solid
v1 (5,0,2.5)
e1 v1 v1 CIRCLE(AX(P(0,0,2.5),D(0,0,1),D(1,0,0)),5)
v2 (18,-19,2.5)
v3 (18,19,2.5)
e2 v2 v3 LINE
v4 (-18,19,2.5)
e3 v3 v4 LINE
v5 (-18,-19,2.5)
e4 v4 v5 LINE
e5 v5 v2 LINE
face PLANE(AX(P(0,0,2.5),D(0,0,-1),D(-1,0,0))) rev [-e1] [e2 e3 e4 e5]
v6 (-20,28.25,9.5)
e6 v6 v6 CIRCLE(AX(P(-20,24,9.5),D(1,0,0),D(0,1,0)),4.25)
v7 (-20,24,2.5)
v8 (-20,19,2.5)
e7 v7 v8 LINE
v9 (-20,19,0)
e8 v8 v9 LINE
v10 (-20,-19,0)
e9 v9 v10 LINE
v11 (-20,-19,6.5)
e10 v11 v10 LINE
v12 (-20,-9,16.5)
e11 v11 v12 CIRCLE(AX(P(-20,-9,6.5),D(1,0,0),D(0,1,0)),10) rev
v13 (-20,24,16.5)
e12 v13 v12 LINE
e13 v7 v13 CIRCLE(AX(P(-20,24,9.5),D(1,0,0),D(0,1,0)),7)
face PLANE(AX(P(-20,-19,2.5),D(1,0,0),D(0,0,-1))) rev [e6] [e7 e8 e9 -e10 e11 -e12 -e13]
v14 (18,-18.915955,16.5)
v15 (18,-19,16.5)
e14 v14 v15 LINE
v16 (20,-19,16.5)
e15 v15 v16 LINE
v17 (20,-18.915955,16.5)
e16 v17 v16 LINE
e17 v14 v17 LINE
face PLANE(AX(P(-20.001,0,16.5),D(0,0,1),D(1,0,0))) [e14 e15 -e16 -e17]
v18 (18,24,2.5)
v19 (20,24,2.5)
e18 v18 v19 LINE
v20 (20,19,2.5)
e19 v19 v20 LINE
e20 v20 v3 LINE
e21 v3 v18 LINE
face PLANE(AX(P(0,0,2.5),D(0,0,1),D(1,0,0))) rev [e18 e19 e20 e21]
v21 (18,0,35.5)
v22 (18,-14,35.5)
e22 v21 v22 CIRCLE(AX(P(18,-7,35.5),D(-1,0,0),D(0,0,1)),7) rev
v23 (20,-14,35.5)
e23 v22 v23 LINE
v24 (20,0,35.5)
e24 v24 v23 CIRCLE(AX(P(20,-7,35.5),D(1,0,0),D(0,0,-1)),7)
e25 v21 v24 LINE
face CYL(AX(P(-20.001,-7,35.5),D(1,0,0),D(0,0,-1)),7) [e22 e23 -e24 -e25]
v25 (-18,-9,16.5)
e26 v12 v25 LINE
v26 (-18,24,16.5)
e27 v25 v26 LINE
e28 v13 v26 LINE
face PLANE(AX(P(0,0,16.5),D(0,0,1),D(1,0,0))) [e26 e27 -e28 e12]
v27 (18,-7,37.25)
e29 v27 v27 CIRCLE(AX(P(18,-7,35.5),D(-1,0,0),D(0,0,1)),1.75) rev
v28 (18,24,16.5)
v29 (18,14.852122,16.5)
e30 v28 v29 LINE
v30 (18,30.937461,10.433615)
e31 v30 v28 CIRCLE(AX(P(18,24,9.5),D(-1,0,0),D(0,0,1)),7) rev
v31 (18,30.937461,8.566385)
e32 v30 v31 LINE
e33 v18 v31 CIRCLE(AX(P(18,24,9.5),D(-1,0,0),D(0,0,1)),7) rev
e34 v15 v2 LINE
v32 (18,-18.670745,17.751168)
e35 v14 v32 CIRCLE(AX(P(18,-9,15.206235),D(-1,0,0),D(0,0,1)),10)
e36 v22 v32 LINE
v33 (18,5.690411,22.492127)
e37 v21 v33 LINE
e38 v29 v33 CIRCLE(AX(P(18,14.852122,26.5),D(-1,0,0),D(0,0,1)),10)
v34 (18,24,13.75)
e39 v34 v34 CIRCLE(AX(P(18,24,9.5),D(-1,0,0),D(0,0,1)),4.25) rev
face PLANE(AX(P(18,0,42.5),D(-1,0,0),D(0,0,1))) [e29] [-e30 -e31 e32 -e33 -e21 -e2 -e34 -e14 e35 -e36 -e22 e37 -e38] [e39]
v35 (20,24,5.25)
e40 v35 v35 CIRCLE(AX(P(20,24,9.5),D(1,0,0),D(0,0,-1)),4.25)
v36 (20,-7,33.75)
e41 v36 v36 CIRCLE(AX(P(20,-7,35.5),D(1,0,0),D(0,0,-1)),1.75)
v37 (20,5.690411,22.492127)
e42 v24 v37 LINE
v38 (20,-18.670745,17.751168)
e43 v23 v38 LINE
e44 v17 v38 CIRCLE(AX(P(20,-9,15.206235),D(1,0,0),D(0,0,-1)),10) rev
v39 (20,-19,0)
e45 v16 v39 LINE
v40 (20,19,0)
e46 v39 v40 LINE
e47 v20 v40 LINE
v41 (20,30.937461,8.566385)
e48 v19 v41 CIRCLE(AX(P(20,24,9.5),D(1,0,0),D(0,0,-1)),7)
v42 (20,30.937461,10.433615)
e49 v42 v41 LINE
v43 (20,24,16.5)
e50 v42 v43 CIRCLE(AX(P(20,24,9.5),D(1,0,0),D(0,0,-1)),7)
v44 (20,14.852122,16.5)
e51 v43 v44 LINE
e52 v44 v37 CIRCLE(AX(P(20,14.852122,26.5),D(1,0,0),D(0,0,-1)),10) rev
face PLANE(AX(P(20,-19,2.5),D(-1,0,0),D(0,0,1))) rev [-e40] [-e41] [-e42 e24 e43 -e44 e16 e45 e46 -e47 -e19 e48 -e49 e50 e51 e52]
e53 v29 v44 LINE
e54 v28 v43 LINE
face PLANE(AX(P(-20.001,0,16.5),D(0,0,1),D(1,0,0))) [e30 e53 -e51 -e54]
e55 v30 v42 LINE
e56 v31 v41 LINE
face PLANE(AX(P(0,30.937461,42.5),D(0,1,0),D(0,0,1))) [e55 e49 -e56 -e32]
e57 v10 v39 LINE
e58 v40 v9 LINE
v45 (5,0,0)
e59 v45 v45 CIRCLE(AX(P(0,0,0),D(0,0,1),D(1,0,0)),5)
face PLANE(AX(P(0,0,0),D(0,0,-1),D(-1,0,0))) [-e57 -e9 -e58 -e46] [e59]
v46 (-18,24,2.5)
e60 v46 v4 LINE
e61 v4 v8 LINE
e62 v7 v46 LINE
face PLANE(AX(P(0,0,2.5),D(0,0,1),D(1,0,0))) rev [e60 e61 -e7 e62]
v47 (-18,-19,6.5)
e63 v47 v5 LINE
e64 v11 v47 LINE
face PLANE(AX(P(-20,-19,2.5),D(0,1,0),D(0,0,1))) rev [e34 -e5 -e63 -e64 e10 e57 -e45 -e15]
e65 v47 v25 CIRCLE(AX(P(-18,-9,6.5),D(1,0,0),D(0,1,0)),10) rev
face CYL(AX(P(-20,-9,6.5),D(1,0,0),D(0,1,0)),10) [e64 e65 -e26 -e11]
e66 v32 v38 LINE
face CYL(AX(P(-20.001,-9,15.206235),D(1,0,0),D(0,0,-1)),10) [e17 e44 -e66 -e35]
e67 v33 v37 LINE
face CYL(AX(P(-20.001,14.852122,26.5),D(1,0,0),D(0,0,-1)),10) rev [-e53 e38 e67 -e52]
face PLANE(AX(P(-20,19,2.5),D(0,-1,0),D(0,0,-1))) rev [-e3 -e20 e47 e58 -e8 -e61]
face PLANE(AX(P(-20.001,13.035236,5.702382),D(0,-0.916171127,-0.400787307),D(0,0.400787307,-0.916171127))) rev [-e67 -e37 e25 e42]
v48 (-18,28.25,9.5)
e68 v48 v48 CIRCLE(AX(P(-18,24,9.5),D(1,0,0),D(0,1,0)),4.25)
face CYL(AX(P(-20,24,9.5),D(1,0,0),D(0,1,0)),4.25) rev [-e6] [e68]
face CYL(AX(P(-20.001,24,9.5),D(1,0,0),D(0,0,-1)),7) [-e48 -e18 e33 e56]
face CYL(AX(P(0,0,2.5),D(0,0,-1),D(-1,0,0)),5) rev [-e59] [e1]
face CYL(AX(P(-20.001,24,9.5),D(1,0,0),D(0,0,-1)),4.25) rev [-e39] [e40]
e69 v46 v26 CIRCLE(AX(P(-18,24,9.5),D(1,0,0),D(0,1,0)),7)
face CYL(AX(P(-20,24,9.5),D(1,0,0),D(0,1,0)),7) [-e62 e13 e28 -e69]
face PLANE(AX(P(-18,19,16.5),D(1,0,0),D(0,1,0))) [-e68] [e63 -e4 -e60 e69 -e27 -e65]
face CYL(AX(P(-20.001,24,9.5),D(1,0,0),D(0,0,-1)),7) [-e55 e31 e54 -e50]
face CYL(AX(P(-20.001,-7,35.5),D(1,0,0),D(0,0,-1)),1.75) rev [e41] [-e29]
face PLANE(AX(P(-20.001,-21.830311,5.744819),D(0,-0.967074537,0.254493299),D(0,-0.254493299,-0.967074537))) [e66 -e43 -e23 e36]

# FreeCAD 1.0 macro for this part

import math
import FreeCAD as App
import Part
import Sketcher

V = App.Vector
Q = App.Units.Quantity

doc = App.newDocument("Part")
body = doc.addObject("PartDesign::Body", "Body")

# Sketch on XY plane
sketch1 = body.newObject("Sketcher::SketchObject", "Sketch")
sketch1.AttachmentSupport = (doc.getObject("XY_Plane"), [""])
sketch1.MapMode = "FlatFace"
sketch1.addGeometry([
    Part.LineSegment(V(-20, 19, 0), V(-20, -19, 0)),  # 0
    Part.LineSegment(V(-20, -19, 0), V(20, -19, 0)),  # 1
    Part.LineSegment(V(20, -19, 0), V(20, 19, 0)),  # 2
    Part.LineSegment(V(20, 19, 0), V(-20, 19, 0)),  # 3
    Part.Circle(V(0, 0, 0), V(0, 0, 1), 5),  # 4
], False)
sketch1.addConstraint([
    Sketcher.Constraint("Coincident", 0, 2, 1, 1),
    Sketcher.Constraint("Coincident", 1, 2, 2, 1),
    Sketcher.Constraint("Coincident", 2, 2, 3, 1),
    Sketcher.Constraint("Coincident", 3, 2, 0, 1),
    Sketcher.Constraint("Vertical", 0),
    Sketcher.Constraint("Horizontal", 1),
    Sketcher.Constraint("Vertical", 2),
    Sketcher.Constraint("Horizontal", 3),
    Sketcher.Constraint("Coincident", 4, 3, -1, 1),
    Sketcher.Constraint("Symmetric", 0, 2, 2, 2, -1, 1),
    Sketcher.Constraint("Diameter", 4, Q("10 mm")),
    Sketcher.Constraint("DistanceX", 1, 1, 1, 2, Q("40 mm")),
    Sketcher.Constraint("DistanceY", 0, 2, 0, 1, Q("38 mm")),
])
pad1 = body.newObject("PartDesign::Pad", "Pad")
pad1.Profile = sketch1
pad1.Length = 2.5

# Sketch on XY plane
sketch2 = body.newObject("Sketcher::SketchObject", "Sketch001")
sketch2.AttachmentSupport = (doc.getObject("XY_Plane"), [""])
sketch2.MapMode = "FlatFace"
sketch2.AttachmentOffset = App.Placement(V(0, 0, 2.5), App.Rotation())
sketch2.addGeometry([
    Part.LineSegment(V(-18, -19, 0), V(-18, 31, 0)),
    Part.LineSegment(V(-18, 31, 0), V(-20, 31, 0)),
    Part.LineSegment(V(-20, 31, 0), V(-20, -19, 0)),
    Part.LineSegment(V(-20, -19, 0), V(-18, -19, 0)),
], False)
sketch2.addConstraint([
    Sketcher.Constraint("Coincident", 0, 2, 1, 1),
    Sketcher.Constraint("Coincident", 1, 2, 2, 1),
    Sketcher.Constraint("Coincident", 2, 2, 3, 1),
    Sketcher.Constraint("Coincident", 3, 2, 0, 1),
    Sketcher.Constraint("Vertical", 0),
    Sketcher.Constraint("Horizontal", 1),
    Sketcher.Constraint("Vertical", 2),
    Sketcher.Constraint("Horizontal", 3),
    Sketcher.Constraint("DistanceX", 1, 2, 1, 1, Q("2 mm")),
    Sketcher.Constraint("DistanceY", 0, 1, 0, 2, Q("50 mm")),
    Sketcher.Constraint("DistanceX", 0, 2, -1, 1, Q("18 mm")),
    Sketcher.Constraint("DistanceY", -1, 1, 0, 2, Q("31 mm")),
])
pad2 = body.newObject("PartDesign::Pad", "Pad001")
pad2.Profile = sketch2
pad2.Length = 14

# Sketch on YZ plane
sketch3 = body.newObject("Sketcher::SketchObject", "Sketch002")
sketch3.AttachmentSupport = (doc.getObject("YZ_Plane"), [""])
sketch3.MapMode = "FlatFace"
sketch3.AttachmentOffset = App.Placement(V(0, 0, -18), App.Rotation())
sketch3.addGeometry([
    Part.LineSegment(V(-19, 16.5, 0), V(-19, 6.5, 0)),  # 0
    Part.ArcOfCircle(Part.Circle(V(-9, 6.5, 0), V(0, 0, 1), 10), math.radians(90), math.radians(180)),  # 1
    Part.LineSegment(V(-9, 16.5, 0), V(-19, 16.5, 0)),  # 2
    Part.LineSegment(V(31, 16.5, 0), V(24, 16.5, 0)),  # 3
    Part.ArcOfCircle(Part.Circle(V(24, 9.5, 0), V(0, 0, 1), 7), math.radians(0), math.radians(90)),  # 4
    Part.LineSegment(V(31, 9.5, 0), V(31, 16.5, 0)),  # 5
    Part.ArcOfCircle(Part.Circle(V(24, 9.5, 0), V(0, 0, 1), 7), math.radians(-90), math.radians(0)),  # 6
    Part.LineSegment(V(24, 2.5, 0), V(31, 2.5, 0)),  # 7
    Part.LineSegment(V(31, 2.5, 0), V(31, 9.5, 0)),  # 8
    Part.Circle(V(24, 9.5, 0), V(0, 0, 1), 4.2),  # 9
], False)
sketch3.addConstraint([
    Sketcher.Constraint("Tangent", 0, 2, 1, 2),
    Sketcher.Constraint("Tangent", 1, 1, 2, 1),
    Sketcher.Constraint("Coincident", 2, 2, 0, 1),
    Sketcher.Constraint("Tangent", 3, 2, 4, 2),
    Sketcher.Constraint("Tangent", 4, 1, 5, 1),
    Sketcher.Constraint("Coincident", 5, 2, 3, 1),
    Sketcher.Constraint("Tangent", 6, 1, 7, 1),
    Sketcher.Constraint("Coincident", 7, 2, 8, 1),
    Sketcher.Constraint("Tangent", 8, 2, 6, 2),
    Sketcher.Constraint("Vertical", 0),
    Sketcher.Constraint("Horizontal", 2),
    Sketcher.Constraint("Horizontal", 3),
    Sketcher.Constraint("Vertical", 5),
    Sketcher.Constraint("Horizontal", 7),
    Sketcher.Constraint("Vertical", 8),
    Sketcher.Constraint("Coincident", 6, 3, 4, 3),
    Sketcher.Constraint("Coincident", 9, 3, 4, 3),
    Sketcher.Constraint("Equal", 4, 6),
    Sketcher.Constraint("Horizontal", 2, 2, 3, 2),
    Sketcher.Constraint("Radius", 1, Q("10 mm")),
    Sketcher.Constraint("Radius", 4, Q("7 mm")),
    Sketcher.Constraint("Diameter", 9, Q("8.5 mm")),
    Sketcher.Constraint("DistanceX", 1, 3, -1, 1, Q("9 mm")),
    Sketcher.Constraint("DistanceX", -1, 1, 4, 3, Q("24 mm")),
    Sketcher.Constraint("DistanceY", -1, 1, 1, 3, Q("6.5 mm")),
])
pocket1 = body.newObject("PartDesign::Pocket", "Pocket")
pocket1.Profile = sketch3
pocket1.Type = "ThroughAll"

# Sketch on XY plane
sketch4 = body.newObject("Sketcher::SketchObject", "Sketch003")
sketch4.AttachmentSupport = (doc.getObject("XY_Plane"), [""])
sketch4.MapMode = "FlatFace"
sketch4.AttachmentOffset = App.Placement(V(0, 0, 2.5), App.Rotation())
sketch4.addGeometry([
    Part.LineSegment(V(18, 30.9, 0), V(18, -19, 0)),
    Part.LineSegment(V(18, -19, 0), V(20, -19, 0)),
    Part.LineSegment(V(20, -19, 0), V(20, 30.9, 0)),
    Part.LineSegment(V(20, 30.9, 0), V(18, 30.9, 0)),
], False)
sketch4.addConstraint([
    Sketcher.Constraint("Coincident", 0, 2, 1, 1),
    Sketcher.Constraint("Coincident", 1, 2, 2, 1),
    Sketcher.Constraint("Coincident", 2, 2, 3, 1),
    Sketcher.Constraint("Coincident", 3, 2, 0, 1),
    Sketcher.Constraint("Vertical", 0),
    Sketcher.Constraint("Horizontal", 1),
    Sketcher.Constraint("Vertical", 2),
    Sketcher.Constraint("Horizontal", 3),
    Sketcher.Constraint("DistanceX", 1, 1, 1, 2, Q("2 mm")),
    Sketcher.Constraint("DistanceX", -1, 1, 0, 2, Q("18 mm")),
    Sketcher.Constraint("DistanceY", 0, 2, -1, 1, Q("19 mm")),
    Sketcher.Constraint("DistanceY", 0, 2, 0, 1, Q("49.937461 mm")),
])
pad3 = body.newObject("PartDesign::Pad", "Pad002")
pad3.Profile = sketch4
pad3.Length = 40

# Sketch on YZ plane
sketch5 = body.newObject("Sketcher::SketchObject", "Sketch004")
sketch5.AttachmentSupport = (doc.getObject("YZ_Plane"), [""])
sketch5.MapMode = "FlatFace"
sketch5.AttachmentOffset = App.Placement(V(0, 0, 20), App.Rotation())
sketch5.addGeometry([
    Part.ArcOfCircle(Part.Circle(V(-7, 35.5, 0), V(0, 0, 1), 7), math.radians(90), math.radians(180)),  # 0
    Part.LineSegment(V(-7, 42.5, 0), V(-19, 42.5, 0)),  # 1
    Part.LineSegment(V(-19, 42.5, 0), V(-19, 16.5, 0)),  # 2
    Part.LineSegment(V(-19, 16.5, 0), V(-18.92, 16.5, 0)),  # 3
    Part.ArcOfCircle(Part.Circle(V(-9, 15.21, 0), V(0, 0, 1), 10), math.radians(165.26), math.radians(172.57)),  # 4
    Part.LineSegment(V(-18.67, 17.75, 0), V(-14, 35.5, 0)),  # 5
], False)
sketch5.addConstraint([
    Sketcher.Constraint("Tangent", 0, 1, 1, 1),
    Sketcher.Constraint("Coincident", 1, 2, 2, 1),
    Sketcher.Constraint("Coincident", 2, 2, 3, 1),
    Sketcher.Constraint("Coincident", 3, 2, 4, 2),
    Sketcher.Constraint("Tangent", 4, 1, 5, 1),
    Sketcher.Constraint("Coincident", 5, 2, 0, 2),
    Sketcher.Constraint("Horizontal", 1),
    Sketcher.Constraint("Vertical", 2),
    Sketcher.Constraint("Horizontal", 3),
    Sketcher.Constraint("Horizontal", 0, 3, 5, 2),
    Sketcher.Constraint("Radius", 0, Q("7 mm")),
    Sketcher.Constraint("Radius", 4, Q("10 mm")),
    Sketcher.Constraint("DistanceX", 1, 2, 1, 1, Q("12 mm")),
    Sketcher.Constraint("DistanceY", 2, 2, 2, 1, Q("26 mm")),
    Sketcher.Constraint("DistanceX", 0, 3, -1, 1, Q("7 mm")),
    Sketcher.Constraint("DistanceX", 4, 3, -1, 1, Q("9 mm")),
    Sketcher.Constraint("DistanceY", -1, 1, 0, 3, Q("35.5 mm")),
    Sketcher.Constraint("DistanceX", 3, 1, 3, 2, Q("0.084045 mm")),
])
pocket2 = body.newObject("PartDesign::Pocket", "Pocket001")
pocket2.Profile = sketch5
pocket2.Type = "UpToFirst"

# Sketch on YZ plane
sketch6 = body.newObject("Sketcher::SketchObject", "Sketch005")
sketch6.AttachmentSupport = (doc.getObject("YZ_Plane"), [""])
sketch6.MapMode = "FlatFace"
sketch6.AttachmentOffset = App.Placement(V(0, 0, 20), App.Rotation())
sketch6.addGeometry([
    Part.ArcOfCircle(Part.Circle(V(24, 10, 0), V(0, 0, 1), 7), math.radians(8), math.radians(90)),  # 0
    Part.LineSegment(V(31, 10, 0), V(31, 42, 0)),  # 1
    Part.LineSegment(V(31, 42, 0), V(-7, 42, 0)),  # 2
    Part.ArcOfCircle(Part.Circle(V(-7, 35, 0), V(0, 0, 1), 7), math.radians(0), math.radians(90)),  # 3
    Part.LineSegment(V(0, 36, 0), V(6, 22, 0)),  # 4
    Part.ArcOfCircle(Part.Circle(V(15, 27, 0), V(0, 0, 1), 10), math.radians(-156), math.radians(-90)),  # 5
    Part.LineSegment(V(15, 16, 0), V(24, 16, 0)),  # 6
], False)
sketch6.addConstraint([
    Sketcher.Constraint("Coincident", 0, 1, 1, 1),
    Sketcher.Constraint("Coincident", 1, 2, 2, 1),
    Sketcher.Constraint("Tangent", 2, 2, 3, 2),
    Sketcher.Constraint("Coincident", 3, 1, 4, 1),
    Sketcher.Constraint("Tangent", 4, 2, 5, 1),
    Sketcher.Constraint("Tangent", 5, 2, 6, 1),
    Sketcher.Constraint("Tangent", 6, 2, 0, 2),
    Sketcher.Constraint("Vertical", 1),
    Sketcher.Constraint("Horizontal", 2),
    Sketcher.Constraint("Horizontal", 6),
    Sketcher.Constraint("Equal", 0, 3),
    Sketcher.Constraint("PointOnObject", 3, 1, -2),
    Sketcher.Constraint("Radius", 0, Q("7 mm")),
    Sketcher.Constraint("Radius", 5, Q("10 mm")),
    Sketcher.Constraint("DistanceX", -1, 1, 0, 3, Q("24 mm")),
    Sketcher.Constraint("DistanceY", 0, 3, 3, 3, Q("26 mm")),
    Sketcher.Constraint("DistanceY", 3, 1, 2, 2, Q("7 mm")),
    Sketcher.Constraint("DistanceY", -1, 1, 0, 3, Q("9.5 mm")),
    Sketcher.Constraint("DistanceX", 2, 2, 2, 1, Q("37.937461 mm")),
    Sketcher.Constraint("DistanceX", 6, 1, 6, 2, Q("9.147878 mm")),
])
pocket3 = body.newObject("PartDesign::Pocket", "Pocket002")
pocket3.Profile = sketch6
pocket3.Type = "UpToFirst"

# Sketch on YZ plane
sketch7 = body.newObject("Sketcher::SketchObject", "Sketch006")
sketch7.AttachmentSupport = (doc.getObject("YZ_Plane"), [""])
sketch7.MapMode = "FlatFace"
sketch7.AttachmentOffset = App.Placement(V(0, 0, 20), App.Rotation())
sketch7.addGeometry([
    Part.LineSegment(V(24, 2, 0), V(31, 2, 0)),
    Part.LineSegment(V(31, 2, 0), V(31, 9, 0)),
    Part.ArcOfCircle(Part.Circle(V(24, 10, 0), V(0, 0, 1), 7), math.radians(-90), math.radians(-8)),
], False)
sketch7.addConstraint([
    Sketcher.Constraint("Coincident", 0, 2, 1, 1),
    Sketcher.Constraint("Coincident", 1, 2, 2, 2),
    Sketcher.Constraint("Tangent", 2, 1, 0, 1),
    Sketcher.Constraint("Horizontal", 0),
    Sketcher.Constraint("Vertical", 1),
    Sketcher.Constraint("Radius", 2, Q("7 mm")),
    Sketcher.Constraint("DistanceX", -1, 1, 2, 3, Q("24 mm")),
    Sketcher.Constraint("DistanceY", -1, 1, 2, 3, Q("9.5 mm")),
    Sketcher.Constraint("DistanceX", 0, 1, 0, 2, Q("6.937461 mm")),
])
pocket4 = body.newObject("PartDesign::Pocket", "Pocket003")
pocket4.Profile = sketch7
pocket4.Type = "UpToFirst"

# Sketch on YZ plane
sketch8 = body.newObject("Sketcher::SketchObject", "Sketch007")
sketch8.AttachmentSupport = (doc.getObject("YZ_Plane"), [""])
sketch8.MapMode = "FlatFace"
sketch8.AttachmentOffset = App.Placement(V(0, 0, 20), App.Rotation())
sketch8.addGeometry(Part.Circle(V(-7, 35.5, 0), V(0, 0, 1), 1.8), False)
sketch8.addConstraint([
    Sketcher.Constraint("Diameter", 0, Q("3.5 mm")),
    Sketcher.Constraint("DistanceX", 0, 3, -1, 1, Q("7 mm")),
    Sketcher.Constraint("DistanceY", -1, 1, 0, 3, Q("35.5 mm")),
])
pocket5 = body.newObject("PartDesign::Pocket", "Pocket004")
pocket5.Profile = sketch8
pocket5.Type = "UpToFirst"

# Sketch on YZ plane
sketch9 = body.newObject("Sketcher::SketchObject", "Sketch008")
sketch9.AttachmentSupport = (doc.getObject("YZ_Plane"), [""])
sketch9.MapMode = "FlatFace"
sketch9.AttachmentOffset = App.Placement(V(0, 0, 20), App.Rotation())
sketch9.addGeometry(Part.Circle(V(24, 9.5, 0), V(0, 0, 1), 4.2), False)
sketch9.addConstraint([
    Sketcher.Constraint("Diameter", 0, Q("8.5 mm")),
    Sketcher.Constraint("DistanceX", -1, 1, 0, 3, Q("24 mm")),
    Sketcher.Constraint("DistanceY", -1, 1, 0, 3, Q("9.5 mm")),
])
pocket6 = body.newObject("PartDesign::Pocket", "Pocket005")
pocket6.Profile = sketch9
pocket6.Type = "UpToFirst"

doc.recompute()
